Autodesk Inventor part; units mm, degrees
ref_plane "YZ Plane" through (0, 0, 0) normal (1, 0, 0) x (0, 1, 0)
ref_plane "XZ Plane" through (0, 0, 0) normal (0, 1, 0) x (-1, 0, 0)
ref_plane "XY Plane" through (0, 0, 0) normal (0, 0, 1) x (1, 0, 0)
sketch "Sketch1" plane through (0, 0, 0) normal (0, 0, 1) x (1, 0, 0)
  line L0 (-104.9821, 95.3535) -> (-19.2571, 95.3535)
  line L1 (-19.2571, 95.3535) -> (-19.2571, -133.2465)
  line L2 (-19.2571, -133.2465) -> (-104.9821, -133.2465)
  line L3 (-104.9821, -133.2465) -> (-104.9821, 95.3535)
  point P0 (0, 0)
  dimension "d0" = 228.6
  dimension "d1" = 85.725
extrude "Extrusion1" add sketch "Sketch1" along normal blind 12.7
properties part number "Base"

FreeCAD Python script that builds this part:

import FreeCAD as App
import Part
import Sketcher

V = App.Vector
Q = App.Units.Quantity

doc = App.newDocument("Part")
body = doc.addObject("PartDesign::Body", "Body")

# Sketch on XY plane
sketch1 = body.newObject("Sketcher::SketchObject", "Sketch")
sketch1.AttachmentSupport = (doc.getObject("XY_Plane"), [""])
sketch1.MapMode = "FlatFace"
sketch1.addGeometry([
    Part.LineSegment(V(-19.2571, 95.3535, 0), V(-104.9821, 95.3535, 0)),
    Part.LineSegment(V(-104.9821, 95.3535, 0), V(-104.9821, -133.2465, 0)),
    Part.LineSegment(V(-104.9821, -133.2465, 0), V(-19.2571, -133.2465, 0)),
    Part.LineSegment(V(-19.2571, -133.2465, 0), V(-19.2571, 95.3535, 0)),
], False)
sketch1.addConstraint([
    Sketcher.Constraint("Coincident", 0, 2, 1, 1),
    Sketcher.Constraint("Coincident", 1, 2, 2, 1),
    Sketcher.Constraint("Coincident", 2, 2, 3, 1),
    Sketcher.Constraint("Coincident", 3, 2, 0, 1),
    Sketcher.Constraint("Horizontal", 0),
    Sketcher.Constraint("Vertical", 1),
    Sketcher.Constraint("Horizontal", 2),
    Sketcher.Constraint("Vertical", 3),
    Sketcher.Constraint("DistanceY", 1, 2, 1, 1, Q("9 in")),
    Sketcher.Constraint("DistanceX", 0, 2, 0, 1, Q("3.375 in")),
    Sketcher.Constraint("DistanceX", 0, 2, -1, 1, 104.982),
    Sketcher.Constraint("DistanceY", -1, 1, 0, 2, 95.3535),
])
pad1 = body.newObject("PartDesign::Pad", "Pad")
pad1.Profile = sketch1
pad1.Length = Q("0.5 in")

doc.recompute()
